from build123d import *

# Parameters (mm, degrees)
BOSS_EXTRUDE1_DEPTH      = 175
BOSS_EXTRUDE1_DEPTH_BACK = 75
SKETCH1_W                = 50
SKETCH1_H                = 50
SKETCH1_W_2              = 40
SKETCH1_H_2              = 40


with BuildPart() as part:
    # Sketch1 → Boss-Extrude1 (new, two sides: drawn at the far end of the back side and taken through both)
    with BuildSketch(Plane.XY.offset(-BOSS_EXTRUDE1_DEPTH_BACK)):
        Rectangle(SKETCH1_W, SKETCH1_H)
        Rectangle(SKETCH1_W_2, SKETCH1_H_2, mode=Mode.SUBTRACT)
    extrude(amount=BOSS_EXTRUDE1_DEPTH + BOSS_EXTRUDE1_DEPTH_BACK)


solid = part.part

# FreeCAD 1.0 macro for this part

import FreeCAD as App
import Part
import Sketcher


def add_polygon(sketch, points):
    """Adds a closed chain of lines whose ends are joined by coincident constraints."""
    first, n = sketch.GeometryCount, len(points)
    for a, b in zip(points, points[1:] + points[:1]):
        sketch.addGeometry(Part.LineSegment(App.Vector(*a, 0), App.Vector(*b, 0)), False)
    for i in range(n):
        sketch.addConstraint(Sketcher.Constraint("Coincident", first + i, 2, first + (i + 1) % n, 1))

doc = App.newDocument("Part")
params = doc.addObject("Spreadsheet::Sheet", "Params")
for row, (alias, value) in enumerate([
    ("sketch1_width", "50 mm"),
    ("sketch1_width2", "40 mm"),
    ("pad1_length", "175 mm"),
    ("pad1_length2", "75 mm"),
], start=1):
    params.set(f"A{row}", alias)
    params.set(f"B{row}", "=" + value)
    params.setAlias(f"B{row}", alias)

body = doc.addObject("PartDesign::Body", "Body")

sketch1 = doc.addObject("Sketcher::SketchObject", "Sketch")
body.addObject(sketch1)
sketch1.AttachmentSupport = (doc.XY_Plane, [""])
sketch1.MapMode = "FlatFace"
add_polygon(sketch1, [(-25, 25), (-25, -25), (25, -25), (25, 25)])
add_polygon(sketch1, [(20, -20), (-20, -20), (-20, 20), (20, 20)])
sketch1.addConstraint([
    Sketcher.Constraint("Vertical", 0),
    Sketcher.Constraint("Horizontal", 1),
    Sketcher.Constraint("Vertical", 2),
    Sketcher.Constraint("Horizontal", 3),
    Sketcher.Constraint("Horizontal", 4),
    Sketcher.Constraint("Vertical", 5),
    Sketcher.Constraint("Horizontal", 6),
    Sketcher.Constraint("Vertical", 7),
    Sketcher.Constraint("Symmetric", 0, 2, 2, 2, -1, 1),
    Sketcher.Constraint("Symmetric", 4, 2, 6, 2, -1, 1),
    Sketcher.Constraint("Equal", 3, 0),
    Sketcher.Constraint("Equal", 6, 5),
    Sketcher.Constraint("DistanceX", 1, 1, 1, 2, 50.0),
    Sketcher.Constraint("DistanceX", 4, 2, 4, 1, 40.0),
])
sketch1.setExpression("Constraints[20]", "Params.sketch1_width")
sketch1.setExpression("Constraints[21]", "Params.sketch1_width2")
pad1 = doc.addObject("PartDesign::Pad", "Pad")
body.addObject(pad1)
pad1.Profile = sketch1
pad1.Type = "TwoLengths"
pad1.setExpression("Length", "Params.pad1_length")
pad1.setExpression("Length2", "Params.pad1_length2")

doc.recompute()
